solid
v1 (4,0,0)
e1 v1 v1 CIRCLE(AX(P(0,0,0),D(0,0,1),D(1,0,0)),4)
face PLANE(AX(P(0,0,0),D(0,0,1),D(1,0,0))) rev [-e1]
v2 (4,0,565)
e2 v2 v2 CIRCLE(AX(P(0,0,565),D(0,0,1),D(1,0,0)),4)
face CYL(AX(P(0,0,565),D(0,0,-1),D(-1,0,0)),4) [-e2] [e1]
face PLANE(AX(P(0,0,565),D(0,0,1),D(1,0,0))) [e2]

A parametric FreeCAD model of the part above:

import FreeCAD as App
import Part
import Sketcher

doc = App.newDocument("Part")
body = doc.addObject("PartDesign::Body", "Body")

sketch1 = doc.addObject("Sketcher::SketchObject", "Sketch")
body.addObject(sketch1)
sketch1.AttachmentSupport = (doc.XY_Plane, [""])
sketch1.MapMode = "FlatFace"
sketch1.addGeometry(Part.Circle(App.Vector(0, 0, 0), App.Vector(0, 0, 1), 4), False)
sketch1.addConstraint([
    Sketcher.Constraint("Coincident", 0, 3, -1, 1),
    Sketcher.Constraint("Diameter", 0, 8.0),
])
pad1 = doc.addObject("PartDesign::Pad", "Pad")
body.addObject(pad1)
pad1.Profile = sketch1
pad1.Length = 565

doc.recompute()
